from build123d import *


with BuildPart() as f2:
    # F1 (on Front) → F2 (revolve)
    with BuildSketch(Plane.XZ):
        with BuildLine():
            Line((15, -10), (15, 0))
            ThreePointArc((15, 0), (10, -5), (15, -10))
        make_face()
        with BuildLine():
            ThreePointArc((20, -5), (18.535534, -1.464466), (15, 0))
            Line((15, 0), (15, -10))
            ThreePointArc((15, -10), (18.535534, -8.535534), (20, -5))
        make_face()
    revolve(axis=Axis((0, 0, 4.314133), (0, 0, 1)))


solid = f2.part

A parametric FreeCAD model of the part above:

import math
import FreeCAD as App
import Part
import Sketcher
Q = App.Units.Quantity

doc = App.newDocument("Part")
body = doc.addObject("PartDesign::Body", "Body")

sketch1 = doc.addObject("Sketcher::SketchObject", "Sketch")
body.addObject(sketch1)
sketch1.AttachmentSupport = (doc.XZ_Plane, [""])
sketch1.MapMode = "FlatFace"
sketch1.addGeometry([
    Part.ArcOfCircle(Part.Circle(App.Vector(15, -5, 0), App.Vector(0, 0, 1), 5), math.radians(90), math.radians(270)),
    Part.ArcOfCircle(Part.Circle(App.Vector(15, -5, 0), App.Vector(0, 0, 1), 5), math.radians(-90), math.radians(0)),
    Part.ArcOfCircle(Part.Circle(App.Vector(15, -5, 0), App.Vector(0, 0, 1), 5), math.radians(0), math.radians(90)),
], False)
sketch1.addConstraint([
    Sketcher.Constraint("Tangent", 0, 2, 1, 1),
    Sketcher.Constraint("Tangent", 1, 2, 2, 1),
    Sketcher.Constraint("Tangent", 2, 2, 0, 1),
    Sketcher.Constraint("PointOnObject", 2, 2, -1),
    Sketcher.Constraint("Horizontal", 2, 3, 1, 2),
    Sketcher.Constraint("Vertical", 2, 3, 0, 2),
    Sketcher.Constraint("Vertical", 0, 2, 2, 2),
    Sketcher.Constraint("Radius", 0, Q("5 mm")),
    Sketcher.Constraint("DistanceX", -1, 1, 0, 3, Q("15 mm")),
])
revolution = doc.addObject("PartDesign::Revolution", "Revolution")
body.addObject(revolution)
revolution.Profile = sketch1
revolution.ReferenceAxis = (sketch1, ["V_Axis"])
revolution.Angle = 360

doc.recompute()
